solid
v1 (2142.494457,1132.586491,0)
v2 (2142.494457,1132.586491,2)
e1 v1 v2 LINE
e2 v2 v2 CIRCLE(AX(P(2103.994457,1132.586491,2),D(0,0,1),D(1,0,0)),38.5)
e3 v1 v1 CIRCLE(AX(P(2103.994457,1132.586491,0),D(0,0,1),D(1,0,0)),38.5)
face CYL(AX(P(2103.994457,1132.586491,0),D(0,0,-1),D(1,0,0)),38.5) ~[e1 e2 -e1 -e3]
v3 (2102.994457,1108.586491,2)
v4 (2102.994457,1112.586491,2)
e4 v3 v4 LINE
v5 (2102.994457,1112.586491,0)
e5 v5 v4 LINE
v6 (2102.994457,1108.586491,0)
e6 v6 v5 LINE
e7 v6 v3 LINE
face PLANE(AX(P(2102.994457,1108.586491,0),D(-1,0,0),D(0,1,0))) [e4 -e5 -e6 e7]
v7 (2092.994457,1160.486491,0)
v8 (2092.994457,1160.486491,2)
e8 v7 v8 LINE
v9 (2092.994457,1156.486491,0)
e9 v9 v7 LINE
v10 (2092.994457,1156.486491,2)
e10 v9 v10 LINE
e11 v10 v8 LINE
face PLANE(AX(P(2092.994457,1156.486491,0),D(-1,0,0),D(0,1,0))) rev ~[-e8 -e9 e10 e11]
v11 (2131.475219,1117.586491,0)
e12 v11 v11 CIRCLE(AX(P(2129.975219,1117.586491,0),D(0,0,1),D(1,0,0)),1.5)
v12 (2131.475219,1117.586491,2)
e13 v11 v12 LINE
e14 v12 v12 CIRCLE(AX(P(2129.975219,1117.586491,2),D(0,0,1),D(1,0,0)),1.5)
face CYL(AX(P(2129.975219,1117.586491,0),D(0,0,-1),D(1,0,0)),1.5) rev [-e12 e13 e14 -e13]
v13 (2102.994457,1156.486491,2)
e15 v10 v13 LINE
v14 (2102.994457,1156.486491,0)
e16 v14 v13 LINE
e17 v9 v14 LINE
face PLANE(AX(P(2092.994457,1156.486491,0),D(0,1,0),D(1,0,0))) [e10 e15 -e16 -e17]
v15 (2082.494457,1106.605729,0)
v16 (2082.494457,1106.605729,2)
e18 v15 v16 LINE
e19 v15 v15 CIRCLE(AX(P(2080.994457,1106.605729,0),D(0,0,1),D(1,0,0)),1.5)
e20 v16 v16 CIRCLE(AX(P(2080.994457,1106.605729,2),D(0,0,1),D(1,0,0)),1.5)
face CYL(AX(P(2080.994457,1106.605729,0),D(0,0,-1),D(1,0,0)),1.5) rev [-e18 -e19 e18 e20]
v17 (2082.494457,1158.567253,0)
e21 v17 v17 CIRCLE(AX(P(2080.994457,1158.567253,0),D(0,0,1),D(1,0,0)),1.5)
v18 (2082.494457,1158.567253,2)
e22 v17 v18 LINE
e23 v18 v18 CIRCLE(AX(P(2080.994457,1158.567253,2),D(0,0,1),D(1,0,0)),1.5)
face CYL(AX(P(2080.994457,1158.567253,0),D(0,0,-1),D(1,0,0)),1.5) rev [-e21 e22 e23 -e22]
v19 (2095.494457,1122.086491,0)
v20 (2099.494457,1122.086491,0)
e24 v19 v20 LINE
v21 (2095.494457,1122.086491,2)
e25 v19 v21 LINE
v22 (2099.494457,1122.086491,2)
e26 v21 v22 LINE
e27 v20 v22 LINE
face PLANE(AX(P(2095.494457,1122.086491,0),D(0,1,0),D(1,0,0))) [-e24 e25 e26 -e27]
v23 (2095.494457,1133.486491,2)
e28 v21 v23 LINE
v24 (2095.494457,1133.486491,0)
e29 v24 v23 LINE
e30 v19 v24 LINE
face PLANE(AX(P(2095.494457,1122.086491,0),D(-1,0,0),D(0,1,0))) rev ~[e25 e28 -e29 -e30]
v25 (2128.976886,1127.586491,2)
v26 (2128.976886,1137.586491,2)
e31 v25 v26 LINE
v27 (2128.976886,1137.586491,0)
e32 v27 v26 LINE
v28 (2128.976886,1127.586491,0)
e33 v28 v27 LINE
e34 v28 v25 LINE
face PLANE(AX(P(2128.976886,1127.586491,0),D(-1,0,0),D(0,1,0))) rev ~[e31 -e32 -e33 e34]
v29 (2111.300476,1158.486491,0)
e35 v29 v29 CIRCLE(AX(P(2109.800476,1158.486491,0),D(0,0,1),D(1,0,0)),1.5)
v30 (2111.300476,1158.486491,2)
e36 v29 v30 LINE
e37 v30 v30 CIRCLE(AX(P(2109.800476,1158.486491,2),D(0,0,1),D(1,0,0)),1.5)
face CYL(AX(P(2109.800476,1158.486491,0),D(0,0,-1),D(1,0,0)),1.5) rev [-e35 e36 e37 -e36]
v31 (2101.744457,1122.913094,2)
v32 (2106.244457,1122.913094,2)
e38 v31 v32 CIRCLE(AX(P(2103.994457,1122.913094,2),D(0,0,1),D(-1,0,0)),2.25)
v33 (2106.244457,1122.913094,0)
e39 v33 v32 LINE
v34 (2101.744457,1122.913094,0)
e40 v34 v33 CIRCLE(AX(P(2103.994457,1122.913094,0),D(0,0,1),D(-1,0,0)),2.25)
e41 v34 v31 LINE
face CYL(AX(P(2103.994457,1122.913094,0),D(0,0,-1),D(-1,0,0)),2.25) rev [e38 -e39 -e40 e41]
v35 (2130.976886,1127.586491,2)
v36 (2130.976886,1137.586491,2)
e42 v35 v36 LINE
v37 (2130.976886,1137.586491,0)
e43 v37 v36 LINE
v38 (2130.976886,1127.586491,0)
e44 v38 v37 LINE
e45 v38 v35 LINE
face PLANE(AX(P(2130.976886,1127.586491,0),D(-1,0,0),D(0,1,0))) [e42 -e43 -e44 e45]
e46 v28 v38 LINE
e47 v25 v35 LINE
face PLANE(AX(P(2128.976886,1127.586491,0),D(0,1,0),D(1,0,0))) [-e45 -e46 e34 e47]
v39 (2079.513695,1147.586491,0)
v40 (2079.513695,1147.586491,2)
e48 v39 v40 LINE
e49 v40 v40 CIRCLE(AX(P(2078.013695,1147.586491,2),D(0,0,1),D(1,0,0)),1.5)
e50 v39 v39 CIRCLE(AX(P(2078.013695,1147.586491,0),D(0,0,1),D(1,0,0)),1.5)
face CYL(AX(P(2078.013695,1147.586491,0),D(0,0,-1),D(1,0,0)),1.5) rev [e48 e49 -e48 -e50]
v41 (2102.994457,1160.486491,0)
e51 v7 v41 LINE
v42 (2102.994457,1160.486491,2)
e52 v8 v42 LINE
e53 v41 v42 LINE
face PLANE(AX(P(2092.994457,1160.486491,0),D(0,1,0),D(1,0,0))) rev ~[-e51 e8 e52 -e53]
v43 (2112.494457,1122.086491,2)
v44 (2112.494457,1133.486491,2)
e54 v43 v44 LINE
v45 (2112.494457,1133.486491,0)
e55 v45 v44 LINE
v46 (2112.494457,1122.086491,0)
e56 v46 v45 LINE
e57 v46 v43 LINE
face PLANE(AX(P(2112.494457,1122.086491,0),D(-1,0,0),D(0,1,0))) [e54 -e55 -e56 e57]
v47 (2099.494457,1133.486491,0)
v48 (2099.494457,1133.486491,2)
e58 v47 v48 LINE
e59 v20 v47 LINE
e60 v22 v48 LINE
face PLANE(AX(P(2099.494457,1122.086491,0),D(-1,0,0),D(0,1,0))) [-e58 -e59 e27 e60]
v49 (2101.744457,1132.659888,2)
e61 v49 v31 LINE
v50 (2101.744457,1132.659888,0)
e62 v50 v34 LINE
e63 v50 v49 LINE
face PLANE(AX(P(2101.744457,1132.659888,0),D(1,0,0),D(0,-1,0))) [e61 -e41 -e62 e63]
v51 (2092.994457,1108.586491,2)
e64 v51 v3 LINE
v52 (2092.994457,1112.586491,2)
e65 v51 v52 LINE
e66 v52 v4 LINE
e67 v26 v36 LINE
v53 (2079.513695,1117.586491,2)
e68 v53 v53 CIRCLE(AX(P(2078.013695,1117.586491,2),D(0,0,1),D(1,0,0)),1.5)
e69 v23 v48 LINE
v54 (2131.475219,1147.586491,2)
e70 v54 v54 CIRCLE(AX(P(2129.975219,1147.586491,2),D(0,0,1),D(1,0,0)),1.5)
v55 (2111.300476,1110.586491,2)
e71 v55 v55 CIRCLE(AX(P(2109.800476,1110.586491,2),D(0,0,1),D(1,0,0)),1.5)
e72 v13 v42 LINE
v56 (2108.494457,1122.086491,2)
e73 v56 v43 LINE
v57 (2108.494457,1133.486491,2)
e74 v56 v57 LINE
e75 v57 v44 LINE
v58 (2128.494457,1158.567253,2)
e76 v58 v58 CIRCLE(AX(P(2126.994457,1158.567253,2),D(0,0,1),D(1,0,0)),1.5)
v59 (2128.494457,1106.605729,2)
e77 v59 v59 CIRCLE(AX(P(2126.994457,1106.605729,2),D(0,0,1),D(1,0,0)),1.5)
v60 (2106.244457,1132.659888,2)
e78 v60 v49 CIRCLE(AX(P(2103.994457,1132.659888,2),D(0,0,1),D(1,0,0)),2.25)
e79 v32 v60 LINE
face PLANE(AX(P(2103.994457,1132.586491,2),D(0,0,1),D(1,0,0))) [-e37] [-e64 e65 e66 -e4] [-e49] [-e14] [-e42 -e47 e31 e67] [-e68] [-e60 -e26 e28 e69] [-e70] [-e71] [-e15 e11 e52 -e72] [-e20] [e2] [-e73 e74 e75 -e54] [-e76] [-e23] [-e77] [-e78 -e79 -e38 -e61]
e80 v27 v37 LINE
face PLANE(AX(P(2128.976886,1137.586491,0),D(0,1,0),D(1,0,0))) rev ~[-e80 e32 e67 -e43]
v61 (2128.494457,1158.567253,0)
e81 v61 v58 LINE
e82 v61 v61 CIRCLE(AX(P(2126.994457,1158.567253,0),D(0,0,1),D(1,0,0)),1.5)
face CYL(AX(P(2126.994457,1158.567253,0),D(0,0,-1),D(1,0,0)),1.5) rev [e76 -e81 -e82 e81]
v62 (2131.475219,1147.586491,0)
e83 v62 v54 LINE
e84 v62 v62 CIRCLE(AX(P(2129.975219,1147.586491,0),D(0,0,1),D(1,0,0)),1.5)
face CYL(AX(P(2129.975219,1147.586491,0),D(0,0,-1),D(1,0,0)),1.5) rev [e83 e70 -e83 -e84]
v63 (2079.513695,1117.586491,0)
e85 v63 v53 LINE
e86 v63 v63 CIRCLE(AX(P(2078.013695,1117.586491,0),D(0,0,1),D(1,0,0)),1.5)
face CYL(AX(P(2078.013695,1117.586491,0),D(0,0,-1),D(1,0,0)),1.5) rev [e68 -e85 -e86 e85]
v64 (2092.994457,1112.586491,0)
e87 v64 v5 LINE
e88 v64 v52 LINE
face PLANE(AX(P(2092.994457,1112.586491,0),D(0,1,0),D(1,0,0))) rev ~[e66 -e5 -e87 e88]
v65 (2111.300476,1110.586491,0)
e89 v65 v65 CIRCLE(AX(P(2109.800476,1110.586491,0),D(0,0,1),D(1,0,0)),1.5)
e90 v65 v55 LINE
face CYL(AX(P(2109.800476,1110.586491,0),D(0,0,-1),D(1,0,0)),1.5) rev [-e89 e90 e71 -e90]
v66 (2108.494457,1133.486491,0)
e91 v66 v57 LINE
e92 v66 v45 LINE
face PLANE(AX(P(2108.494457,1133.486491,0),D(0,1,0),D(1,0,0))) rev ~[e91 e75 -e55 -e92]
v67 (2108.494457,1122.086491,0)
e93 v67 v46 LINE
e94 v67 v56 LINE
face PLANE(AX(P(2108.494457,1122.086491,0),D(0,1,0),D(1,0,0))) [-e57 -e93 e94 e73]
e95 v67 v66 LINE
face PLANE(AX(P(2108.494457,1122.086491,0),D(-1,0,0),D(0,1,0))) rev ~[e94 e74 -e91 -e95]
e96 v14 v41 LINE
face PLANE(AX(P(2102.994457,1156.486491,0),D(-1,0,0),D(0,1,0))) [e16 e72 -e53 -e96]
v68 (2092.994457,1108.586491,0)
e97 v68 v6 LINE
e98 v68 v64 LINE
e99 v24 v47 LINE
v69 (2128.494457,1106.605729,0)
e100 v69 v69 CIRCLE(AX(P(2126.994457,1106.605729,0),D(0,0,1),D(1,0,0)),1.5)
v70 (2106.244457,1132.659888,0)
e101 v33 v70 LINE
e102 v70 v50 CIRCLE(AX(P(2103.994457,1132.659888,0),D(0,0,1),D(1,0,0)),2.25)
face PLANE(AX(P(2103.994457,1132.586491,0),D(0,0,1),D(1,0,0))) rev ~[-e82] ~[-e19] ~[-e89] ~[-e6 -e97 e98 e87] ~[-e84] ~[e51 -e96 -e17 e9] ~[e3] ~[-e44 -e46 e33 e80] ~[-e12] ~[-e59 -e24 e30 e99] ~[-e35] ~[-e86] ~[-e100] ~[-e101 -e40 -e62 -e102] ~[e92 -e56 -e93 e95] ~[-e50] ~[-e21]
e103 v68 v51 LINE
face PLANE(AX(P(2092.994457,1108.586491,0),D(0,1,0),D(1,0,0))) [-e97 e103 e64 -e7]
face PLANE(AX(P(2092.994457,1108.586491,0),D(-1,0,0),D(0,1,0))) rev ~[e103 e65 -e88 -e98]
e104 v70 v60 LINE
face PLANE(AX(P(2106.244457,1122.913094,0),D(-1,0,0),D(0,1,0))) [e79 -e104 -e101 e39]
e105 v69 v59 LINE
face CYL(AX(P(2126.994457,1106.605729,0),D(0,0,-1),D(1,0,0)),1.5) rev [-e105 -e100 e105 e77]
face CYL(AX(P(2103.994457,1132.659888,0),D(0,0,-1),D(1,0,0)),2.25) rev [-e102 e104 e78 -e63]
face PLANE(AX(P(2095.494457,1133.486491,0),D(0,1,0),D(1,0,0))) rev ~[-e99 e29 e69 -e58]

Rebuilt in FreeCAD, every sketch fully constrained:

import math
import FreeCAD as App
import Part
import Sketcher

V = App.Vector


def add_polygon(sketch, points):
    """Adds a closed chain of lines whose ends are joined by coincident constraints."""
    first, n = sketch.GeometryCount, len(points)
    for a, b in zip(points, points[1:] + points[:1]):
        sketch.addGeometry(Part.LineSegment(App.Vector(*a, 0), App.Vector(*b, 0)), False)
    for i in range(n):
        sketch.addConstraint(Sketcher.Constraint("Coincident", first + i, 2, first + (i + 1) % n, 1))

doc = App.newDocument("Part")
params = doc.addObject("Spreadsheet::Sheet", "Params")
for row, (alias, value) in enumerate([
    ("sketch1_diameter", "77 mm"),
    ("sketch1_diameter2", "3 mm"),
    ("sketch1_width", "10 mm"),
    ("sketch1_width2", "4 mm"),
    ("sketch1_width3", "2 mm"),
    ("pad1_length", "2 mm"),
], start=1):
    params.set(f"A{row}", alias)
    params.set(f"B{row}", "=" + value)
    params.setAlias(f"B{row}", alias)

body = doc.addObject("PartDesign::Body", "Body")

# Sketch on XY plane
sketch1 = body.newObject("Sketcher::SketchObject", "Sketch")
sketch1.AttachmentSupport = (doc.getObject("XY_Plane"), [""])
sketch1.MapMode = "FlatFace"
sketch1.addGeometry(Part.Circle(V(2104, 1132.6, 0), V(0, 0, 1), 38.5), False)  # 0
sketch1.addGeometry(Part.Circle(V(2081, 1106.6, 0), V(0, 0, 1), 1.5), False)  # 1
sketch1.addGeometry(Part.Circle(V(2078, 1117.6, 0), V(0, 0, 1), 1.5), False)  # 2
add_polygon(sketch1, [(2103, 1108.6), (2093, 1108.6), (2093, 1112.6), (2103, 1112.6)])  # lines 3-6
add_polygon(sketch1, [(2099.5, 1122.1), (2095.5, 1122.1), (2095.5, 1133.5), (2099.5, 1133.5)])  # lines 7-10
sketch1.addGeometry(Part.LineSegment(V(2101.7, 1122.9, 0), V(2101.7, 1132.7, 0)), False)  # 11
sketch1.addGeometry(Part.ArcOfCircle(Part.Circle(V(2104, 1132.7, 0), V(0, 0, 1), 2.2), math.radians(0), math.radians(180)), False)  # 12
sketch1.addGeometry(Part.LineSegment(V(2106.2, 1132.7, 0), V(2106.2, 1122.9, 0)), False)  # 13
sketch1.addGeometry(Part.ArcOfCircle(Part.Circle(V(2104, 1122.9, 0), V(0, 0, 1), 2.2), math.radians(180), math.radians(360)), False)  # 14
sketch1.addGeometry(Part.Circle(V(2109.8, 1110.6, 0), V(0, 0, 1), 1.5), False)  # 15
sketch1.addGeometry(Part.Circle(V(2127, 1106.6, 0), V(0, 0, 1), 1.5), False)  # 16
sketch1.addGeometry(Part.Circle(V(2130, 1117.6, 0), V(0, 0, 1), 1.5), False)  # 17
add_polygon(sketch1, [(2112.5, 1122.1), (2108.5, 1122.1), (2108.5, 1133.5), (2112.5, 1133.5)])  # lines 18-21
add_polygon(sketch1, [(2131, 1127.6), (2129, 1127.6), (2129, 1137.6), (2131, 1137.6)])  # lines 22-25
sketch1.addGeometry(Part.Circle(V(2078, 1147.6, 0), V(0, 0, 1), 1.5), False)  # 26
sketch1.addGeometry(Part.Circle(V(2081, 1158.6, 0), V(0, 0, 1), 1.5), False)  # 27
add_polygon(sketch1, [(2103, 1156.5), (2093, 1156.5), (2093, 1160.5), (2103, 1160.5)])  # lines 28-31
sketch1.addGeometry(Part.Circle(V(2109.8, 1158.5, 0), V(0, 0, 1), 1.5), False)  # 32
sketch1.addGeometry(Part.Circle(V(2130, 1147.6, 0), V(0, 0, 1), 1.5), False)  # 33
sketch1.addGeometry(Part.Circle(V(2127, 1158.6, 0), V(0, 0, 1), 1.5), False)  # 34
sketch1.addConstraint([
    Sketcher.Constraint("Tangent", 11, 2, 12, 2),
    Sketcher.Constraint("Tangent", 12, 1, 13, 1),
    Sketcher.Constraint("Tangent", 13, 2, 14, 2),
    Sketcher.Constraint("Tangent", 14, 1, 11, 1),
    Sketcher.Constraint("Horizontal", 3),
    Sketcher.Constraint("Vertical", 4),
    Sketcher.Constraint("Horizontal", 5),
    Sketcher.Constraint("Vertical", 6),
    Sketcher.Constraint("Horizontal", 7),
    Sketcher.Constraint("Vertical", 8),
    Sketcher.Constraint("Horizontal", 9),
    Sketcher.Constraint("Vertical", 10),
    Sketcher.Constraint("Vertical", 11),
    Sketcher.Constraint("Vertical", 13),
    Sketcher.Constraint("Horizontal", 18),
    Sketcher.Constraint("Vertical", 19),
    Sketcher.Constraint("Horizontal", 20),
    Sketcher.Constraint("Vertical", 21),
    Sketcher.Constraint("Horizontal", 22),
    Sketcher.Constraint("Vertical", 23),
    Sketcher.Constraint("Horizontal", 24),
    Sketcher.Constraint("Vertical", 25),
    Sketcher.Constraint("Horizontal", 28),
    Sketcher.Constraint("Vertical", 29),
    Sketcher.Constraint("Horizontal", 30),
    Sketcher.Constraint("Vertical", 31),
    Sketcher.Constraint("Equal", 1, 2),
    Sketcher.Constraint("Equal", 2, 15),
    Sketcher.Constraint("Equal", 15, 16),
    Sketcher.Constraint("Equal", 16, 17),
    Sketcher.Constraint("Equal", 17, 26),
    Sketcher.Constraint("Equal", 26, 27),
    Sketcher.Constraint("Equal", 27, 32),
    Sketcher.Constraint("Equal", 32, 33),
    Sketcher.Constraint("Equal", 33, 34),
    Sketcher.Constraint("Horizontal", 1, 3, 16, 3),
    Sketcher.Constraint("Horizontal", 2, 3, 17, 3),
    Sketcher.Constraint("Horizontal", 26, 3, 33, 3),
    Sketcher.Constraint("Horizontal", 27, 3, 34, 3),
    Sketcher.Constraint("Horizontal", 10, 2, 18, 2),
    Sketcher.Constraint("Horizontal", 9, 2, 19, 2),
    Sketcher.Constraint("Vertical", 0, 3, 12, 3),
    Sketcher.Constraint("Vertical", 2, 3, 26, 3),
    Sketcher.Constraint("Vertical", 1, 3, 27, 3),
    Sketcher.Constraint("Vertical", 15, 3, 32, 3),
    Sketcher.Constraint("Vertical", 17, 3, 33, 3),
    Sketcher.Constraint("Vertical", 16, 3, 34, 3),
    Sketcher.Constraint("Vertical", 4, 2, 28, 2),
    Sketcher.Constraint("Vertical", 6, 2, 30, 2),
    Sketcher.Constraint("Equal", 9, 18),
    Sketcher.Constraint("Equal", 20, 4),
    Sketcher.Constraint("Equal", 30, 23),
    Sketcher.Constraint("Equal", 6, 29),
    Sketcher.Constraint("Diameter", 0, 77.0),
    Sketcher.Constraint("Diameter", 1, 3.0),
    Sketcher.Constraint("DistanceX", 3, 2, 3, 1, 10.0),
    Sketcher.Constraint("DistanceX", 7, 2, 7, 1, 4.0),
    Sketcher.Constraint("DistanceX", 22, 2, 22, 1, 2.0),
    Sketcher.Constraint("Radius", 12, 2.25),
    Sketcher.Constraint("DistanceY", 8, 1, 8, 2, 11.4),
    Sketcher.Constraint("DistanceX", 1, 3, 0, 3, 23.0),
    Sketcher.Constraint("DistanceY", 2, 3, 0, 3, 15.0),
    Sketcher.Constraint("DistanceY", 15, 3, 0, 3, 22.0),
    Sketcher.Constraint("DistanceX", 14, 3, 16, 3, 23.0),
    Sketcher.Constraint("DistanceY", 0, 3, 26, 3, 15.0),
    Sketcher.Constraint("DistanceX", 1, 3, 3, 2, 12.0),
    Sketcher.Constraint("DistanceY", 3, 2, 15, 3, 2.0),
    Sketcher.Constraint("DistanceX", 10, 2, 18, 2, 9.0),
    Sketcher.Constraint("DistanceY", 17, 3, 22, 2, 10.0),
    Sketcher.Constraint("DistanceY", 28, 2, 32, 3, 2.0),
    Sketcher.Constraint("DistanceY", 8, 2, 28, 2, 23.0),
    Sketcher.Constraint("DistanceY", 0, 3, 32, 3, 25.9),
    Sketcher.Constraint("DistanceX", 7, 2, 14, 3, 8.5),
    Sketcher.Constraint("DistanceY", 11, 1, 11, 2, 9.746794),
    Sketcher.Constraint("DistanceY", -1, 1, 0, 3, 1132.586491),
    Sketcher.Constraint("DistanceY", -1, 1, 1, 3, 1106.605729),
    Sketcher.Constraint("DistanceY", -1, 1, 12, 3, 1132.659888),
    Sketcher.Constraint("DistanceX", -1, 1, 17, 3, 2129.975219),
    Sketcher.Constraint("DistanceX", 14, 3, 15, 3, 5.806018),
    Sketcher.Constraint("DistanceX", 2, 3, 15, 3, 31.78678),
    Sketcher.Constraint("DistanceY", 14, 3, 27, 3, 35.654159),
    Sketcher.Constraint("DistanceX", 21, 2, 22, 2, 16.482429),
    Sketcher.Constraint("DistanceX", -1, 1, 0, 3, 2103.994457),
])
sketch1.setExpression("Constraints[73]", "Params.sketch1_diameter")
sketch1.setExpression("Constraints[74]", "Params.sketch1_diameter2")
sketch1.setExpression("Constraints[75]", "Params.sketch1_width")
sketch1.setExpression("Constraints[76]", "Params.sketch1_width2")
sketch1.setExpression("Constraints[77]", "Params.sketch1_width3")
pad1 = body.newObject("PartDesign::Pad", "Pad")
pad1.Profile = sketch1
pad1.setExpression("Length", "Params.pad1_length")

doc.recompute()
